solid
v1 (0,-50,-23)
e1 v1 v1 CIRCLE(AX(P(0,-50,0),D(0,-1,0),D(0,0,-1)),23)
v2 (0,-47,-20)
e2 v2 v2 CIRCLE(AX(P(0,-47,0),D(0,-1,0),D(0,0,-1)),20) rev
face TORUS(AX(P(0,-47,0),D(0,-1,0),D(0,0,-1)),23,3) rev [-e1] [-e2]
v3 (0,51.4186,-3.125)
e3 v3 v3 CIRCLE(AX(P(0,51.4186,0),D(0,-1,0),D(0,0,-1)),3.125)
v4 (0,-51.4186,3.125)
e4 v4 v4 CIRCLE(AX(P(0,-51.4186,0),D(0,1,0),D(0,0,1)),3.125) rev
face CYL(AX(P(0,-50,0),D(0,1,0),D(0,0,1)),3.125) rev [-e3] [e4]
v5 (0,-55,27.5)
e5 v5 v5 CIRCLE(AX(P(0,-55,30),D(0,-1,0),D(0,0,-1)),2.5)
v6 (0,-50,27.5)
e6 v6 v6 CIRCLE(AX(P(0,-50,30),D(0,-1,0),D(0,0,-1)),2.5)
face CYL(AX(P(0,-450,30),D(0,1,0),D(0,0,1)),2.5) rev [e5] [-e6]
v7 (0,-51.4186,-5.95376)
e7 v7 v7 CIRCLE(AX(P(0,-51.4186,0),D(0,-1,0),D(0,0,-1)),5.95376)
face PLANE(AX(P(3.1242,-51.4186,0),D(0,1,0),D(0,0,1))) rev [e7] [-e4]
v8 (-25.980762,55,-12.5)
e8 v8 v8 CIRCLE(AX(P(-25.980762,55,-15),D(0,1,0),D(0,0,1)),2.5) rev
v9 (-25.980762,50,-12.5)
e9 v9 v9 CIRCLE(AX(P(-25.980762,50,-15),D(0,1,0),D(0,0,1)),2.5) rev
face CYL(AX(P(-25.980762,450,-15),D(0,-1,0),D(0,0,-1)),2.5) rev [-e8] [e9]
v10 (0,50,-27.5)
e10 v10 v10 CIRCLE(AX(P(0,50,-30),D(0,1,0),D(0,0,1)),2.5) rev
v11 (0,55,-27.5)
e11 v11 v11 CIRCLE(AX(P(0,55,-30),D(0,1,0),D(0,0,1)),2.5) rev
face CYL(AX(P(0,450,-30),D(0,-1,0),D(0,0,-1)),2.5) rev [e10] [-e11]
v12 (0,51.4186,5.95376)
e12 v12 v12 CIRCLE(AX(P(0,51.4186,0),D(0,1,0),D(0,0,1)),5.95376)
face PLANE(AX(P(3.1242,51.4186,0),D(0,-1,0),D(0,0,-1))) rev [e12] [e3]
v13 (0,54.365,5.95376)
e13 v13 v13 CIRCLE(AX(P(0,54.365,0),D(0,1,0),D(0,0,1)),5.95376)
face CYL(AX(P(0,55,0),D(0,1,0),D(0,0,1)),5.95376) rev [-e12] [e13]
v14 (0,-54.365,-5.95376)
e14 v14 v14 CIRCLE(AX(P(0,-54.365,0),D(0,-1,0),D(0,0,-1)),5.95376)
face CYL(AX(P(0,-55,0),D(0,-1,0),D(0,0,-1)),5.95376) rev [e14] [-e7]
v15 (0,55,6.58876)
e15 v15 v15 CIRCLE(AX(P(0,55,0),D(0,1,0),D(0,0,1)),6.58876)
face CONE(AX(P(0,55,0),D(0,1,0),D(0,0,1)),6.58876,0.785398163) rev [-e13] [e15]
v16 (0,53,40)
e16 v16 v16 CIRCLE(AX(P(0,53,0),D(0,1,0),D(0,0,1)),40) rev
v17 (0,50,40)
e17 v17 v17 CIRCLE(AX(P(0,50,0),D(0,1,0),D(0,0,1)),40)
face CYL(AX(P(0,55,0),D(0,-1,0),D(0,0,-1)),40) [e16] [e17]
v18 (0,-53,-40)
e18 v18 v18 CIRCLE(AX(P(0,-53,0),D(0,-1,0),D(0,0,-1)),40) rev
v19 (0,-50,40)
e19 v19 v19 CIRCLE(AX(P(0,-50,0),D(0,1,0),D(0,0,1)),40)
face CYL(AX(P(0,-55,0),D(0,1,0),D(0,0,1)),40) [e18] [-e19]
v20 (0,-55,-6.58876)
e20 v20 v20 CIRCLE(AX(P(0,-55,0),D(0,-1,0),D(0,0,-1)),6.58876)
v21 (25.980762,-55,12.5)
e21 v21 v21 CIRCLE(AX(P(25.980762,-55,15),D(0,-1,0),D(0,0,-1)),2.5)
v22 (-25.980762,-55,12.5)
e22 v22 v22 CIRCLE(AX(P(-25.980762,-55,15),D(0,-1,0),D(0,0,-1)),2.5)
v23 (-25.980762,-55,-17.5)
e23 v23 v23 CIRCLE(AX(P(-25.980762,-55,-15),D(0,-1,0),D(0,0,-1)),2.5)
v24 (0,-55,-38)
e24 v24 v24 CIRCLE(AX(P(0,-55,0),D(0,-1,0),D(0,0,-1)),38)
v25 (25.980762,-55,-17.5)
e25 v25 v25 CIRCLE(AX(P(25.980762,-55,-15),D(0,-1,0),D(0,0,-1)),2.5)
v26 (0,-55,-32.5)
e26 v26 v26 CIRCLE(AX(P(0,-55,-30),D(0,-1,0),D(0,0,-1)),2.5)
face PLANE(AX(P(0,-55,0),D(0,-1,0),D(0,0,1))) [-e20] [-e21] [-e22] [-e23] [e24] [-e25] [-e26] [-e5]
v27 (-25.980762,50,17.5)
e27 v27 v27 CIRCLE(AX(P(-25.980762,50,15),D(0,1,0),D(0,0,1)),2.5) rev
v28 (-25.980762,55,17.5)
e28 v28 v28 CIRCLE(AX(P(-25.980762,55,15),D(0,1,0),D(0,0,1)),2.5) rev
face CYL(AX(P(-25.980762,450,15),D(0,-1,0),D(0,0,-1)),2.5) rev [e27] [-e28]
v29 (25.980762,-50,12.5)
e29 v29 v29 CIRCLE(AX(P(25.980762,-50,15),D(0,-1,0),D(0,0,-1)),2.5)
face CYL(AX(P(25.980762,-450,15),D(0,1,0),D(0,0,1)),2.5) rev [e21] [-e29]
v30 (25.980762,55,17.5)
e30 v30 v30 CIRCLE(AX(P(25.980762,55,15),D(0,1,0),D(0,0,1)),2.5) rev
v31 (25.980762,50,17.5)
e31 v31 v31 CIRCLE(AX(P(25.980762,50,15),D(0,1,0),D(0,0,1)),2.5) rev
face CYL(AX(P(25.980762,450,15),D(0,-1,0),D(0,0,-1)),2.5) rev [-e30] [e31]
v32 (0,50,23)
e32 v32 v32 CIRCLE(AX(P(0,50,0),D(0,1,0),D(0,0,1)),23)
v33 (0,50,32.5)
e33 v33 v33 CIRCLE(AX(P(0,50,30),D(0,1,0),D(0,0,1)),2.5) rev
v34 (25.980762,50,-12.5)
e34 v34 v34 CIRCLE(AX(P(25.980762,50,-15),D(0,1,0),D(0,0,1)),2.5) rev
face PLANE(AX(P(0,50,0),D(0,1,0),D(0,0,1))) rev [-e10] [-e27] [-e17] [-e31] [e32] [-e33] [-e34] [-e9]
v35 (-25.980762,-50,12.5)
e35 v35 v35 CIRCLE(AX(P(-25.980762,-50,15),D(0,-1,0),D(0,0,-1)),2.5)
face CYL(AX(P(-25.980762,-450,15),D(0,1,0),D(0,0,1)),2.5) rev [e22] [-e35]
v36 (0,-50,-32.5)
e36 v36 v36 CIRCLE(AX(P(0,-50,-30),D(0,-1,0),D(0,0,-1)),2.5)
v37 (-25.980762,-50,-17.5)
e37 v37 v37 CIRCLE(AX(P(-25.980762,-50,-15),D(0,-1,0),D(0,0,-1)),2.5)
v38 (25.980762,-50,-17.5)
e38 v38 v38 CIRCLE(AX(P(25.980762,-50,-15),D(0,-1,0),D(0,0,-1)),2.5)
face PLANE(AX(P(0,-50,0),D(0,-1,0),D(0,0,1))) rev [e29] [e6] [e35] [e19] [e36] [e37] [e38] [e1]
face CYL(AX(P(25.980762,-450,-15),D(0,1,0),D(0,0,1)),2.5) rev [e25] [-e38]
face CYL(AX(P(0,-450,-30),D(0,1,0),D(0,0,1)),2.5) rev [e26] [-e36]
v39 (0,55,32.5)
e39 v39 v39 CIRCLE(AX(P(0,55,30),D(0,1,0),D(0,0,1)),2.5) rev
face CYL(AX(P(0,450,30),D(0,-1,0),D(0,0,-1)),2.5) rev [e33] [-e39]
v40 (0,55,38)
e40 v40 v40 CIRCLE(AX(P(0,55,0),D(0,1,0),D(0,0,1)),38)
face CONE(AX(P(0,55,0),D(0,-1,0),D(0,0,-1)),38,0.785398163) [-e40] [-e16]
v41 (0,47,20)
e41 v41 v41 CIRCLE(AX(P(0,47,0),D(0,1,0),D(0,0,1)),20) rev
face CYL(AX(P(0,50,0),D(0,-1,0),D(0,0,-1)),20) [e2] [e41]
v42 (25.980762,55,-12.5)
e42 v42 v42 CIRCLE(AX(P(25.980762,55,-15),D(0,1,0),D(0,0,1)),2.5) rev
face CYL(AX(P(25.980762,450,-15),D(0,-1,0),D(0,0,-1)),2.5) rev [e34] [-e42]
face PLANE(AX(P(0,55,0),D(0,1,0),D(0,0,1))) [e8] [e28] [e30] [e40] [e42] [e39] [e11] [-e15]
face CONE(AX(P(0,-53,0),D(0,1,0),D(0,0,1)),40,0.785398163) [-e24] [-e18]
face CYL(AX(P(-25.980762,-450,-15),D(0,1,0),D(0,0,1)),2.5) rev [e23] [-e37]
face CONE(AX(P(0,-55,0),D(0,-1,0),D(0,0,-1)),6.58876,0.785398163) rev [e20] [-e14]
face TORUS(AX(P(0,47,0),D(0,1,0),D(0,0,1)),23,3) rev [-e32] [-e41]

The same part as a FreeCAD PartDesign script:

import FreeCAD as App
import Part
import Sketcher
Q = App.Units.Quantity


def edges_at(feature, points):
    """Names of the edges that pass closest to the given points."""
    edges = feature.Shape.Edges
    near = lambda p: min(range(len(edges)), key=lambda i: edges[i].distToShape(Part.Vertex(*p))[0])
    return sorted({f"Edge{near(p) + 1}" for p in points})

doc = App.newDocument("Part")
body = doc.addObject("PartDesign::Body", "Body")

# Sketch on XZ plane
sketch1 = doc.addObject("Sketcher::SketchObject", "Sketch")
body.addObject(sketch1)
sketch1.AttachmentSupport = (doc.XZ_Plane, [""])
sketch1.MapMode = "FlatFace"
sketch1.addGeometry(Part.Circle(App.Vector(0, 0, 0), App.Vector(0, 0, 1), 20), False)
sketch1.addConstraint([
    Sketcher.Constraint("Coincident", 0, 3, -1, 1),
    Sketcher.Constraint("Diameter", 0, 40.0),
])
pad1 = doc.addObject("PartDesign::Pad", "Pad")
body.addObject(pad1)
pad1.Profile = sketch1
pad1.Length = 100
pad1.Midplane = True

# Sketch on XZ plane
sketch2 = doc.addObject("Sketcher::SketchObject", "Sketch001")
body.addObject(sketch2)
sketch2.AttachmentSupport = (doc.XZ_Plane, [""])
sketch2.MapMode = "FlatFace"
sketch2.AttachmentOffset = App.Placement(App.Vector(0, 0, -50), App.Rotation())
sketch2.addGeometry(Part.Circle(App.Vector(0, 0, 0), App.Vector(0, 0, 1), 40), False)
sketch2.addConstraint([
    Sketcher.Constraint("Coincident", 0, 3, -1, 1),
    Sketcher.Constraint("Diameter", 0, 80.0),
])
pad2 = doc.addObject("PartDesign::Pad", "Pad001")
body.addObject(pad2)
pad2.Profile = sketch2
pad2.Length = 5
pad2.Reversed = True
doc.recompute()

chamfer = doc.addObject("PartDesign::Chamfer", "Chamfer")
body.addObject(chamfer)
chamfer.Base = (pad2, edges_at(pad2, [(-40, 55, 0)]))
chamfer.Size = 2

# Sketch on XZ plane
sketch3 = doc.addObject("Sketcher::SketchObject", "Sketch002")
body.addObject(sketch3)
sketch3.AttachmentSupport = (doc.XZ_Plane, [""])
sketch3.MapMode = "FlatFace"
sketch3.AttachmentOffset = App.Placement(App.Vector(0, 0, 240), App.Rotation())
sketch3.addGeometry(Part.Circle(App.Vector(0, -30, 0), App.Vector(0, 0, 1), 2.5), False)
sketch3.addConstraint([
    Sketcher.Constraint("PointOnObject", 0, 3, -2),
    Sketcher.Constraint("Diameter", 0, 5.0),
    Sketcher.Constraint("DistanceY", 0, 3, -1, 1, 30.0),
])
pocket1 = doc.addObject("PartDesign::Pocket", "Pocket")
body.addObject(pocket1)
pocket1.Profile = sketch3
pocket1.Length = 690
doc.recompute()

polarpattern = doc.addObject("PartDesign::PolarPattern", "PolarPattern")
body.addObject(polarpattern)
polarpattern.Originals = [pocket1]
polarpattern.Axis = (doc.Y_Axis, [""])
polarpattern.Angle = 360
polarpattern.Occurrences = 6
body.Tip = polarpattern
doc.recompute()

fillet = doc.addObject("PartDesign::Fillet", "Fillet")
body.addObject(fillet)
fillet.Base = (polarpattern, edges_at(polarpattern, [(-20, 50, 0)]))
fillet.Radius = 3

# Sketch on YZ plane
sketch4 = doc.addObject("Sketcher::SketchObject", "Sketch003")
body.addObject(sketch4)
sketch4.AttachmentSupport = (doc.YZ_Plane, [""])
sketch4.MapMode = "FlatFace"
sketch4.addGeometry([
    Part.LineSegment(App.Vector(53.1, 0, 0), App.Vector(55, 0, 0)),  # 0
    Part.LineSegment(App.Vector(55, 0, 0), App.Vector(55, 6.6, 0)),  # 1
    Part.LineSegment(App.Vector(55, 6.6, 0), App.Vector(54.4, 6, 0)),  # 2
    Part.LineSegment(App.Vector(54.4, 6, 0), App.Vector(51.4, 6, 0)),  # 3
    Part.LineSegment(App.Vector(51.4, 6, 0), App.Vector(51.4, 3.1, 0)),  # 4
    Part.LineSegment(App.Vector(51.4, 3.1, 0), App.Vector(55, 3.1, 0)),  # 5
    Part.LineSegment(App.Vector(55, 3.1, 0), App.Vector(53.1, 0, 0)),  # 6
], False)
sketch4.addConstraint([
    Sketcher.Constraint("Coincident", 0, 2, 1, 1),
    Sketcher.Constraint("Coincident", 1, 2, 2, 1),
    Sketcher.Constraint("Coincident", 2, 2, 3, 1),
    Sketcher.Constraint("Coincident", 3, 2, 4, 1),
    Sketcher.Constraint("Coincident", 4, 2, 5, 1),
    Sketcher.Constraint("Coincident", 5, 2, 6, 1),
    Sketcher.Constraint("Coincident", 6, 2, 0, 1),
    Sketcher.Constraint("Horizontal", 0),
    Sketcher.Constraint("Vertical", 1),
    Sketcher.Constraint("Horizontal", 3),
    Sketcher.Constraint("Vertical", 4),
    Sketcher.Constraint("Horizontal", 5),
    Sketcher.Constraint("PointOnObject", 0, 2, -1),
    Sketcher.Constraint("Angle", 2, Q("-135 deg")),
    Sketcher.Constraint("Angle", 6, Q("-121 deg")),
    Sketcher.Constraint("DistanceX", -1, 1, 0, 2, 55.0),
    Sketcher.Constraint("DistanceX", -1, 1, 5, 2, 54.95),
    Sketcher.Constraint("DistanceX", 3, 2, 3, 1, 2.9464),
    Sketcher.Constraint("DistanceX", 5, 1, 5, 2, 3.5314),
    Sketcher.Constraint("DistanceX", 0, 1, 0, 2, 1.927209),
    Sketcher.Constraint("DistanceY", 1, 1, 1, 2, 6.58876),
])
groove = doc.addObject("PartDesign::Groove", "Groove")
body.addObject(groove)
groove.Profile = sketch4
groove.ReferenceAxis = (sketch4, ["H_Axis"])
groove.Angle = 360

# Sketch on XZ plane
sketch5 = doc.addObject("Sketcher::SketchObject", "Sketch004")
body.addObject(sketch5)
sketch5.AttachmentSupport = (doc.XZ_Plane, [""])
sketch5.MapMode = "FlatFace"
sketch5.AttachmentOffset = App.Placement(App.Vector(0, 0, 51), App.Rotation())
sketch5.addGeometry(Part.Circle(App.Vector(0, 0, 0), App.Vector(0, 0, 1), 3.1), False)
sketch5.addConstraint([
    Sketcher.Constraint("Coincident", 0, 3, -1, 1),
    Sketcher.Constraint("Diameter", 0, 6.25),
])
pocket2 = doc.addObject("PartDesign::Pocket", "Pocket001")
body.addObject(pocket2)
pocket2.Profile = sketch5
pocket2.Length = 107
doc.recompute()

mirrored = doc.addObject("PartDesign::Mirrored", "Mirrored")
body.addObject(mirrored)
mirrored.Originals = [pad2, groove, pocket2]
mirrored.MirrorPlane = (doc.XZ_Plane, [""])
body.Tip = mirrored
doc.recompute()

chamfer2 = doc.addObject("PartDesign::Chamfer", "Chamfer001")
body.addObject(chamfer2)
chamfer2.Base = (mirrored, edges_at(mirrored, [(-40, -55, 0)]))
chamfer2.Size = 2
doc.recompute()

fillet2 = doc.addObject("PartDesign::Fillet", "Fillet001")
body.addObject(fillet2)
fillet2.Base = (chamfer2, edges_at(chamfer2, [(-20, -50, 0)]))
fillet2.Radius = 3
doc.recompute()

mirrored2 = doc.addObject("PartDesign::Mirrored", "Mirrored001")
body.addObject(mirrored2)
mirrored2.Originals = [pocket1]
mirrored2.MirrorPlane = (doc.XZ_Plane, [""])
body.Tip = mirrored2

# Sketch on XZ plane
sketch6 = doc.addObject("Sketcher::SketchObject", "Sketch005")
body.addObject(sketch6)
sketch6.AttachmentSupport = (doc.XZ_Plane, [""])
sketch6.MapMode = "FlatFace"
sketch6.AttachmentOffset = App.Placement(App.Vector(0, 0, -240), App.Rotation())
sketch6.addGeometry(Part.Circle(App.Vector(-26, -15, 0), App.Vector(0, 0, 1), 2.5), False)
sketch6.addConstraint([
    Sketcher.Constraint("Diameter", 0, 5.0),
    Sketcher.Constraint("DistanceY", 0, 3, -1, 1, 15.0),
    Sketcher.Constraint("DistanceX", 0, 3, -1, 1, 25.980762),
])
pocket3 = doc.addObject("PartDesign::Pocket", "Pocket002")
body.addObject(pocket3)
pocket3.Profile = sketch6
pocket3.Length = 690
pocket3.Reversed = True

# Sketch on XZ plane
sketch7 = doc.addObject("Sketcher::SketchObject", "Sketch006")
body.addObject(sketch7)
sketch7.AttachmentSupport = (doc.XZ_Plane, [""])
sketch7.MapMode = "FlatFace"
sketch7.AttachmentOffset = App.Placement(App.Vector(0, 0, -240), App.Rotation())
sketch7.addGeometry(Part.Circle(App.Vector(-26, 15, 0), App.Vector(0, 0, 1), 2.5), False)
sketch7.addConstraint([
    Sketcher.Constraint("Diameter", 0, 5.0),
    Sketcher.Constraint("DistanceY", -1, 1, 0, 3, 15.0),
    Sketcher.Constraint("DistanceX", 0, 3, -1, 1, 25.980762),
])
pocket4 = doc.addObject("PartDesign::Pocket", "Pocket003")
body.addObject(pocket4)
pocket4.Profile = sketch7
pocket4.Length = 690
pocket4.Reversed = True

# Sketch on XZ plane
sketch8 = doc.addObject("Sketcher::SketchObject", "Sketch007")
body.addObject(sketch8)
sketch8.AttachmentSupport = (doc.XZ_Plane, [""])
sketch8.MapMode = "FlatFace"
sketch8.AttachmentOffset = App.Placement(App.Vector(0, 0, -240), App.Rotation())
sketch8.addGeometry(Part.Circle(App.Vector(0, 30, 0), App.Vector(0, 0, 1), 2.5), False)
sketch8.addConstraint([
    Sketcher.Constraint("PointOnObject", 0, 3, -2),
    Sketcher.Constraint("Diameter", 0, 5.0),
    Sketcher.Constraint("DistanceY", -1, 1, 0, 3, 30.0),
])
pocket5 = doc.addObject("PartDesign::Pocket", "Pocket004")
body.addObject(pocket5)
pocket5.Profile = sketch8
pocket5.Length = 690
pocket5.Reversed = True

# Sketch on XZ plane
sketch9 = doc.addObject("Sketcher::SketchObject", "Sketch008")
body.addObject(sketch9)
sketch9.AttachmentSupport = (doc.XZ_Plane, [""])
sketch9.MapMode = "FlatFace"
sketch9.AttachmentOffset = App.Placement(App.Vector(0, 0, -240), App.Rotation())
sketch9.addGeometry(Part.Circle(App.Vector(26, 15, 0), App.Vector(0, 0, 1), 2.5), False)
sketch9.addConstraint([
    Sketcher.Constraint("Diameter", 0, 5.0),
    Sketcher.Constraint("DistanceY", -1, 1, 0, 3, 15.0),
    Sketcher.Constraint("DistanceX", -1, 1, 0, 3, 25.980762),
])
pocket6 = doc.addObject("PartDesign::Pocket", "Pocket005")
body.addObject(pocket6)
pocket6.Profile = sketch9
pocket6.Length = 690
pocket6.Reversed = True

# Sketch on XZ plane
sketch10 = doc.addObject("Sketcher::SketchObject", "Sketch009")
body.addObject(sketch10)
sketch10.AttachmentSupport = (doc.XZ_Plane, [""])
sketch10.MapMode = "FlatFace"
sketch10.AttachmentOffset = App.Placement(App.Vector(0, 0, -240), App.Rotation())
sketch10.addGeometry(Part.Circle(App.Vector(26, -15, 0), App.Vector(0, 0, 1), 2.5), False)
sketch10.addConstraint([
    Sketcher.Constraint("Diameter", 0, 5.0),
    Sketcher.Constraint("DistanceY", 0, 3, -1, 1, 15.0),
    Sketcher.Constraint("DistanceX", -1, 1, 0, 3, 25.980762),
])
pocket7 = doc.addObject("PartDesign::Pocket", "Pocket006")
body.addObject(pocket7)
pocket7.Profile = sketch10
pocket7.Length = 690
pocket7.Reversed = True

doc.recompute()
